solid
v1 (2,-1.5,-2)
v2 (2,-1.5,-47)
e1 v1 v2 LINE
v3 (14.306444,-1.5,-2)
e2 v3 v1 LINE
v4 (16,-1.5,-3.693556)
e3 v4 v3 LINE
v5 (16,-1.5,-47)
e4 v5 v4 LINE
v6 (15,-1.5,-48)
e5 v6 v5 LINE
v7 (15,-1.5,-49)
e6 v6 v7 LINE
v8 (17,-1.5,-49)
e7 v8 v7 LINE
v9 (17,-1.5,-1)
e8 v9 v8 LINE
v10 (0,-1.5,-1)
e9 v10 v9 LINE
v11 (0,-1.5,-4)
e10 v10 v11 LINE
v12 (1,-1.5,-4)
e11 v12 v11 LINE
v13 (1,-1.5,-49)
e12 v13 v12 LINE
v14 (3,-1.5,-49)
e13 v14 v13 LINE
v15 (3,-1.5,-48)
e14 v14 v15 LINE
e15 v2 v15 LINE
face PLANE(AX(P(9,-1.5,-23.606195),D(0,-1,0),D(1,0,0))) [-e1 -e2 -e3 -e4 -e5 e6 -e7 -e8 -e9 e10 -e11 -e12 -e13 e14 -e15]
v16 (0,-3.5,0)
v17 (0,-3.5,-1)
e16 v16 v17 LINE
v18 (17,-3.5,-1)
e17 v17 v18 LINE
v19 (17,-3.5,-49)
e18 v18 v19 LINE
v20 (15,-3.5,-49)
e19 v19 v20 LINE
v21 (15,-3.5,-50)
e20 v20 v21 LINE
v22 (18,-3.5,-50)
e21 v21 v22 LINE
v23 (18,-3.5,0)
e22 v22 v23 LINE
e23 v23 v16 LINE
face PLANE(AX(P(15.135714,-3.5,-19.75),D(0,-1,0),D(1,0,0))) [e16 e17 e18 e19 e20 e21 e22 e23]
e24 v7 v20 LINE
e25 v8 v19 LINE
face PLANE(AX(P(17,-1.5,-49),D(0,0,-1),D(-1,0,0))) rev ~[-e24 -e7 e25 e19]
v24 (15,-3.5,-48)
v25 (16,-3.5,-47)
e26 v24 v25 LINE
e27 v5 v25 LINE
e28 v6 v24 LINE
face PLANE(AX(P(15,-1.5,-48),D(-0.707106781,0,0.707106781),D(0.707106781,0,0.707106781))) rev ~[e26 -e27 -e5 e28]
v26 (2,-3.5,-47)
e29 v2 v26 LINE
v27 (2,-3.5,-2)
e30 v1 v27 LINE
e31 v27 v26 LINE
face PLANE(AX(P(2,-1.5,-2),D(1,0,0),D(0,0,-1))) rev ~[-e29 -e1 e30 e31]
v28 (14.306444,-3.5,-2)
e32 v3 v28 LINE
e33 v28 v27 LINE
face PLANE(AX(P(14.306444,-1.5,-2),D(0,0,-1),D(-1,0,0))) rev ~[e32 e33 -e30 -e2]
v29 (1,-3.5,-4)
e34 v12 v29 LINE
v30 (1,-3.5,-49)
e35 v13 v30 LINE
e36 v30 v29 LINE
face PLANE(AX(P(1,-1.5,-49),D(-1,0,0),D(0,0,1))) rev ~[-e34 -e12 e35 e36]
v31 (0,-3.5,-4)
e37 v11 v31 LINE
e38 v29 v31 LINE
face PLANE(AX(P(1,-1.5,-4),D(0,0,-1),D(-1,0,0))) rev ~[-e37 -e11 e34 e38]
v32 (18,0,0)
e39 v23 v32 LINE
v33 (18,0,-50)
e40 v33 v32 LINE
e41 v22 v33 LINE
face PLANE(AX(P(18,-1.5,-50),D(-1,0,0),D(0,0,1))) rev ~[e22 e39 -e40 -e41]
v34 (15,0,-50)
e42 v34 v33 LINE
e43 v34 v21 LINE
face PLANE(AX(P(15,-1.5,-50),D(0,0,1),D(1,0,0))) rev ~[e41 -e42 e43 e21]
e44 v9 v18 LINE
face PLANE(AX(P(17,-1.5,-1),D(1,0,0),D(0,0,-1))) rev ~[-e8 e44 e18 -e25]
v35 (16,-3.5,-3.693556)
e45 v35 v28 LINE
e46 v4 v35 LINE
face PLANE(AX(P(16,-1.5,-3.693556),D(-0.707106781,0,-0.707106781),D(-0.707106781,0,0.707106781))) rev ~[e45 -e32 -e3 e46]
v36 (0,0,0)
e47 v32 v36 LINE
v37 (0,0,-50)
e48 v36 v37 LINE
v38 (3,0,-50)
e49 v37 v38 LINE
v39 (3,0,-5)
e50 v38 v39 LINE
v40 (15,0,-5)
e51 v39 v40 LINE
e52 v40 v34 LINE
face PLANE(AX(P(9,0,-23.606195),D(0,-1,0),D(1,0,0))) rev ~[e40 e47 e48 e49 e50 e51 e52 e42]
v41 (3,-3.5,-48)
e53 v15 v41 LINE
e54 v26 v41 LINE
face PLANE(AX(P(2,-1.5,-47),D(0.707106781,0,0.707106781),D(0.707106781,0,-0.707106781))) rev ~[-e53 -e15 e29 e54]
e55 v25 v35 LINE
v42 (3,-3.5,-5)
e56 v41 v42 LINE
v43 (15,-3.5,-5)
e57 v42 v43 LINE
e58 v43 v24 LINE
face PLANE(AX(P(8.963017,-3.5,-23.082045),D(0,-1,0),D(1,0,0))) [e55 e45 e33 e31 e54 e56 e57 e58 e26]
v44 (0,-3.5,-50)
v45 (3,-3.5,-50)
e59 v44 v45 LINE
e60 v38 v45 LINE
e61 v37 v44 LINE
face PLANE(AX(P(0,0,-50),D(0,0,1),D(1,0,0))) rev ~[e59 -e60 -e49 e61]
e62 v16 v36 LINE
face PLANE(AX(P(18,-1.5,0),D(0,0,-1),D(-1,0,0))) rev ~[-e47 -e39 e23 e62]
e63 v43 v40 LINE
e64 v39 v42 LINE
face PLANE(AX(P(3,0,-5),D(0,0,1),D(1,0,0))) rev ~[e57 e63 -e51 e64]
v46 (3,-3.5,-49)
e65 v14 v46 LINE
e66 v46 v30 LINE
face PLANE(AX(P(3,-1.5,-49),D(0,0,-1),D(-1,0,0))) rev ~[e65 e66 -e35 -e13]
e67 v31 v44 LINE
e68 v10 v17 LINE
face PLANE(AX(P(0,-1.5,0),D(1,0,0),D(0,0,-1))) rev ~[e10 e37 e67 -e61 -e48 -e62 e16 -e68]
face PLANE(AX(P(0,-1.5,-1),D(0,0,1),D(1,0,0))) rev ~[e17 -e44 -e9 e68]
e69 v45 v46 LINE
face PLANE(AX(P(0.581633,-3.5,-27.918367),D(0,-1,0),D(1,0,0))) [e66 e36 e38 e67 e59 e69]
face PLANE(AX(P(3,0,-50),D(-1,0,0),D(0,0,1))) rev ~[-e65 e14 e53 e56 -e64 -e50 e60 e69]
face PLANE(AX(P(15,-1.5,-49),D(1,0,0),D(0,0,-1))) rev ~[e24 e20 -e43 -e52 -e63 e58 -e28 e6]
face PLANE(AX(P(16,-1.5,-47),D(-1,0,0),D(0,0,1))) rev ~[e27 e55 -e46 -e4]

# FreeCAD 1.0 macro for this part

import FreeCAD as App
import Part
import Sketcher

V = App.Vector

doc = App.newDocument("Part")
body = doc.addObject("PartDesign::Body", "Body")

# Sketch on XZ plane
sketch1 = doc.addObject("Sketcher::SketchObject", "Sketch")
body.addObject(sketch1)
sketch1.AttachmentSupport = (doc.XZ_Plane, [""])
sketch1.MapMode = "FlatFace"
sketch1.addGeometry(Part.LineSegment(V(18, 0, 0), V(0, 0, 0)), False)
sketch1.addGeometry(Part.LineSegment(V(0, 0, 0), V(0, -50, 0)), False)
sketch1.addGeometry(Part.LineSegment(V(0, -50, 0), V(3, -50, 0)), False)
sketch1.addGeometry(Part.LineSegment(V(3, -50, 0), V(3, -5, 0)), False)
sketch1.addGeometry(Part.LineSegment(V(3, -5, 0), V(15, -5, 0)), False)
sketch1.addGeometry(Part.LineSegment(V(15, -5, 0), V(15, -50, 0)), False)
sketch1.addGeometry(Part.LineSegment(V(15, -50, 0), V(18, -50, 0)), False)
sketch1.addGeometry(Part.LineSegment(V(18, -50, 0), V(18, 0, 0)), False)
sketch1.addConstraint(Sketcher.Constraint("Coincident", 0, 2, 1, 1))
sketch1.addConstraint(Sketcher.Constraint("Coincident", 1, 2, 2, 1))
sketch1.addConstraint(Sketcher.Constraint("Coincident", 2, 2, 3, 1))
sketch1.addConstraint(Sketcher.Constraint("Coincident", 3, 2, 4, 1))
sketch1.addConstraint(Sketcher.Constraint("Coincident", 4, 2, 5, 1))
sketch1.addConstraint(Sketcher.Constraint("Coincident", 5, 2, 6, 1))
sketch1.addConstraint(Sketcher.Constraint("Coincident", 6, 2, 7, 1))
sketch1.addConstraint(Sketcher.Constraint("Coincident", 7, 2, 0, 1))
sketch1.addConstraint(Sketcher.Constraint("Horizontal", 0))
sketch1.addConstraint(Sketcher.Constraint("Vertical", 1))
sketch1.addConstraint(Sketcher.Constraint("Horizontal", 2))
sketch1.addConstraint(Sketcher.Constraint("Vertical", 3))
sketch1.addConstraint(Sketcher.Constraint("Horizontal", 4))
sketch1.addConstraint(Sketcher.Constraint("Vertical", 5))
sketch1.addConstraint(Sketcher.Constraint("Horizontal", 6))
sketch1.addConstraint(Sketcher.Constraint("Vertical", 7))
sketch1.addConstraint(Sketcher.Constraint("Coincident", 0, 2, -1, 1))
sketch1.addConstraint(Sketcher.Constraint("Horizontal", 2, 2, 5, 2))
sketch1.addConstraint(Sketcher.Constraint("Equal", 2, 6))
sketch1.addConstraint(Sketcher.Constraint("DistanceX", 0, 2, 0, 1, 18.0))
sketch1.addConstraint(Sketcher.Constraint("DistanceX", 2, 1, 2, 2, 3.0))
sketch1.addConstraint(Sketcher.Constraint("DistanceY", 1, 2, 1, 1, 50.0))
sketch1.addConstraint(Sketcher.Constraint("DistanceY", 3, 1, 3, 2, 45.0))
pad1 = doc.addObject("PartDesign::Pad", "Pad")
body.addObject(pad1)
pad1.Profile = sketch1
pad1.Length = 1.5

# Sketch on XZ plane
sketch2 = doc.addObject("Sketcher::SketchObject", "Sketch001")
body.addObject(sketch2)
sketch2.AttachmentSupport = (doc.XZ_Plane, [""])
sketch2.MapMode = "FlatFace"
sketch2.AttachmentOffset = App.Placement(V(0, 0, 1.5), App.Rotation())
sketch2.addGeometry(Part.LineSegment(V(0, 0, 0), V(0, -1, 0)), False)
sketch2.addGeometry(Part.LineSegment(V(0, -1, 0), V(17, -1, 0)), False)
sketch2.addGeometry(Part.LineSegment(V(17, -1, 0), V(17, -49, 0)), False)
sketch2.addGeometry(Part.LineSegment(V(17, -49, 0), V(15, -49, 0)), False)
sketch2.addGeometry(Part.LineSegment(V(15, -49, 0), V(15, -50, 0)), False)
sketch2.addGeometry(Part.LineSegment(V(15, -50, 0), V(18, -50, 0)), False)
sketch2.addGeometry(Part.LineSegment(V(18, -50, 0), V(18, 0, 0)), False)
sketch2.addGeometry(Part.LineSegment(V(18, 0, 0), V(0, 0, 0)), False)
sketch2.addGeometry(Part.LineSegment(V(15, -5, 0), V(15, -48, 0)), False)
sketch2.addGeometry(Part.LineSegment(V(15, -48, 0), V(16, -47, 0)), False)
sketch2.addGeometry(Part.LineSegment(V(16, -47, 0), V(16, -3.693556, 0)), False)
sketch2.addGeometry(Part.LineSegment(V(16, -3.693556, 0), V(14.306444, -2, 0)), False)
sketch2.addGeometry(Part.LineSegment(V(14.306444, -2, 0), V(2, -2, 0)), False)
sketch2.addGeometry(Part.LineSegment(V(2, -2, 0), V(2, -47, 0)), False)
sketch2.addGeometry(Part.LineSegment(V(2, -47, 0), V(3, -48, 0)), False)
sketch2.addGeometry(Part.LineSegment(V(3, -48, 0), V(3, -5, 0)), False)
sketch2.addGeometry(Part.LineSegment(V(3, -5, 0), V(15, -5, 0)), False)
sketch2.addGeometry(Part.LineSegment(V(1, -4, 0), V(0, -4, 0)), False)
sketch2.addGeometry(Part.LineSegment(V(0, -4, 0), V(0, -50, 0)), False)
sketch2.addGeometry(Part.LineSegment(V(0, -50, 0), V(3, -50, 0)), False)
sketch2.addGeometry(Part.LineSegment(V(3, -50, 0), V(3, -49, 0)), False)
sketch2.addGeometry(Part.LineSegment(V(3, -49, 0), V(1, -49, 0)), False)
sketch2.addGeometry(Part.LineSegment(V(1, -49, 0), V(1, -4, 0)), False)
sketch2.addConstraint(Sketcher.Constraint("Coincident", 0, 2, 1, 1))
sketch2.addConstraint(Sketcher.Constraint("Coincident", 1, 2, 2, 1))
sketch2.addConstraint(Sketcher.Constraint("Coincident", 2, 2, 3, 1))
sketch2.addConstraint(Sketcher.Constraint("Coincident", 3, 2, 4, 1))
sketch2.addConstraint(Sketcher.Constraint("Coincident", 4, 2, 5, 1))
sketch2.addConstraint(Sketcher.Constraint("Coincident", 5, 2, 6, 1))
sketch2.addConstraint(Sketcher.Constraint("Coincident", 6, 2, 7, 1))
sketch2.addConstraint(Sketcher.Constraint("Coincident", 7, 2, 0, 1))
sketch2.addConstraint(Sketcher.Constraint("Coincident", 8, 2, 9, 1))
sketch2.addConstraint(Sketcher.Constraint("Coincident", 9, 2, 10, 1))
sketch2.addConstraint(Sketcher.Constraint("Coincident", 10, 2, 11, 1))
sketch2.addConstraint(Sketcher.Constraint("Coincident", 11, 2, 12, 1))
sketch2.addConstraint(Sketcher.Constraint("Coincident", 12, 2, 13, 1))
sketch2.addConstraint(Sketcher.Constraint("Coincident", 13, 2, 14, 1))
sketch2.addConstraint(Sketcher.Constraint("Coincident", 14, 2, 15, 1))
sketch2.addConstraint(Sketcher.Constraint("Coincident", 15, 2, 16, 1))
sketch2.addConstraint(Sketcher.Constraint("Coincident", 16, 2, 8, 1))
sketch2.addConstraint(Sketcher.Constraint("Coincident", 17, 2, 18, 1))
sketch2.addConstraint(Sketcher.Constraint("Coincident", 18, 2, 19, 1))
sketch2.addConstraint(Sketcher.Constraint("Coincident", 19, 2, 20, 1))
sketch2.addConstraint(Sketcher.Constraint("Coincident", 20, 2, 21, 1))
sketch2.addConstraint(Sketcher.Constraint("Coincident", 21, 2, 22, 1))
sketch2.addConstraint(Sketcher.Constraint("Coincident", 22, 2, 17, 1))
sketch2.addConstraint(Sketcher.Constraint("Vertical", 0))
sketch2.addConstraint(Sketcher.Constraint("Horizontal", 1))
sketch2.addConstraint(Sketcher.Constraint("Vertical", 2))
sketch2.addConstraint(Sketcher.Constraint("Horizontal", 3))
sketch2.addConstraint(Sketcher.Constraint("Vertical", 4))
sketch2.addConstraint(Sketcher.Constraint("Horizontal", 5))
sketch2.addConstraint(Sketcher.Constraint("Vertical", 6))
sketch2.addConstraint(Sketcher.Constraint("Horizontal", 7))
sketch2.addConstraint(Sketcher.Constraint("Vertical", 8))
sketch2.addConstraint(Sketcher.Constraint("Vertical", 10))
sketch2.addConstraint(Sketcher.Constraint("Horizontal", 12))
sketch2.addConstraint(Sketcher.Constraint("Vertical", 13))
sketch2.addConstraint(Sketcher.Constraint("Vertical", 15))
sketch2.addConstraint(Sketcher.Constraint("Horizontal", 16))
sketch2.addConstraint(Sketcher.Constraint("Horizontal", 17))
sketch2.addConstraint(Sketcher.Constraint("Vertical", 18))
sketch2.addConstraint(Sketcher.Constraint("Horizontal", 19))
sketch2.addConstraint(Sketcher.Constraint("Vertical", 20))
sketch2.addConstraint(Sketcher.Constraint("Horizontal", 21))
sketch2.addConstraint(Sketcher.Constraint("Vertical", 22))
sketch2.addConstraint(Sketcher.Constraint("Coincident", 7, 2, -1, 1))
sketch2.addConstraint(Sketcher.Constraint("PointOnObject", 17, 2, -2))
sketch2.addConstraint(Sketcher.Constraint("Perpendicular", 9, 11))
sketch2.addConstraint(Sketcher.Constraint("Parallel", 11, 14))
sketch2.addConstraint(Sketcher.Constraint("Horizontal", 9, 2, 13, 2))
sketch2.addConstraint(Sketcher.Constraint("Horizontal", 8, 2, 14, 2))
sketch2.addConstraint(Sketcher.Constraint("Horizontal", 5, 2, 18, 2))
sketch2.addConstraint(Sketcher.Constraint("Horizontal", 3, 2, 20, 2))
sketch2.addConstraint(Sketcher.Constraint("Vertical", 4, 2, 8, 2))
sketch2.addConstraint(Sketcher.Constraint("Vertical", 15, 2, 19, 2))
sketch2.addConstraint(Sketcher.Constraint("Equal", 5, 19))
sketch2.addConstraint(Sketcher.Constraint("Equal", 3, 21))
sketch2.addConstraint(Sketcher.Constraint("Equal", 17, 0))
sketch2.addConstraint(Sketcher.Constraint("Equal", 0, 4))
sketch2.addConstraint(Sketcher.Constraint("Equal", 13, 22))
sketch2.addConstraint(Sketcher.Constraint("Equal", 9, 14))
sketch2.addConstraint(Sketcher.Constraint("DistanceX", 1, 1, 1, 2, 17.0))
sketch2.addConstraint(Sketcher.Constraint("DistanceX", 3, 2, 3, 1, 2.0))
sketch2.addConstraint(Sketcher.Constraint("DistanceX", 5, 1, 5, 2, 3.0))
sketch2.addConstraint(Sketcher.Constraint("DistanceY", 2, 2, 2, 1, 48.0))
sketch2.addConstraint(Sketcher.Constraint("DistanceY", 8, 2, 8, 1, 43.0))
sketch2.addConstraint(Sketcher.Constraint("DistanceY", 13, 2, 13, 1, 45.0))
sketch2.addConstraint(Sketcher.Constraint("DistanceY", 8, 2, -1, 1, 48.0))
sketch2.addConstraint(Sketcher.Constraint("DistanceX", -1, 1, 9, 2, 16.0))
sketch2.addConstraint(Sketcher.Constraint("Distance", 11, 2.39505))
pad2 = doc.addObject("PartDesign::Pad", "Pad001")
body.addObject(pad2)
pad2.Profile = sketch2
pad2.Length = 2

doc.recompute()
